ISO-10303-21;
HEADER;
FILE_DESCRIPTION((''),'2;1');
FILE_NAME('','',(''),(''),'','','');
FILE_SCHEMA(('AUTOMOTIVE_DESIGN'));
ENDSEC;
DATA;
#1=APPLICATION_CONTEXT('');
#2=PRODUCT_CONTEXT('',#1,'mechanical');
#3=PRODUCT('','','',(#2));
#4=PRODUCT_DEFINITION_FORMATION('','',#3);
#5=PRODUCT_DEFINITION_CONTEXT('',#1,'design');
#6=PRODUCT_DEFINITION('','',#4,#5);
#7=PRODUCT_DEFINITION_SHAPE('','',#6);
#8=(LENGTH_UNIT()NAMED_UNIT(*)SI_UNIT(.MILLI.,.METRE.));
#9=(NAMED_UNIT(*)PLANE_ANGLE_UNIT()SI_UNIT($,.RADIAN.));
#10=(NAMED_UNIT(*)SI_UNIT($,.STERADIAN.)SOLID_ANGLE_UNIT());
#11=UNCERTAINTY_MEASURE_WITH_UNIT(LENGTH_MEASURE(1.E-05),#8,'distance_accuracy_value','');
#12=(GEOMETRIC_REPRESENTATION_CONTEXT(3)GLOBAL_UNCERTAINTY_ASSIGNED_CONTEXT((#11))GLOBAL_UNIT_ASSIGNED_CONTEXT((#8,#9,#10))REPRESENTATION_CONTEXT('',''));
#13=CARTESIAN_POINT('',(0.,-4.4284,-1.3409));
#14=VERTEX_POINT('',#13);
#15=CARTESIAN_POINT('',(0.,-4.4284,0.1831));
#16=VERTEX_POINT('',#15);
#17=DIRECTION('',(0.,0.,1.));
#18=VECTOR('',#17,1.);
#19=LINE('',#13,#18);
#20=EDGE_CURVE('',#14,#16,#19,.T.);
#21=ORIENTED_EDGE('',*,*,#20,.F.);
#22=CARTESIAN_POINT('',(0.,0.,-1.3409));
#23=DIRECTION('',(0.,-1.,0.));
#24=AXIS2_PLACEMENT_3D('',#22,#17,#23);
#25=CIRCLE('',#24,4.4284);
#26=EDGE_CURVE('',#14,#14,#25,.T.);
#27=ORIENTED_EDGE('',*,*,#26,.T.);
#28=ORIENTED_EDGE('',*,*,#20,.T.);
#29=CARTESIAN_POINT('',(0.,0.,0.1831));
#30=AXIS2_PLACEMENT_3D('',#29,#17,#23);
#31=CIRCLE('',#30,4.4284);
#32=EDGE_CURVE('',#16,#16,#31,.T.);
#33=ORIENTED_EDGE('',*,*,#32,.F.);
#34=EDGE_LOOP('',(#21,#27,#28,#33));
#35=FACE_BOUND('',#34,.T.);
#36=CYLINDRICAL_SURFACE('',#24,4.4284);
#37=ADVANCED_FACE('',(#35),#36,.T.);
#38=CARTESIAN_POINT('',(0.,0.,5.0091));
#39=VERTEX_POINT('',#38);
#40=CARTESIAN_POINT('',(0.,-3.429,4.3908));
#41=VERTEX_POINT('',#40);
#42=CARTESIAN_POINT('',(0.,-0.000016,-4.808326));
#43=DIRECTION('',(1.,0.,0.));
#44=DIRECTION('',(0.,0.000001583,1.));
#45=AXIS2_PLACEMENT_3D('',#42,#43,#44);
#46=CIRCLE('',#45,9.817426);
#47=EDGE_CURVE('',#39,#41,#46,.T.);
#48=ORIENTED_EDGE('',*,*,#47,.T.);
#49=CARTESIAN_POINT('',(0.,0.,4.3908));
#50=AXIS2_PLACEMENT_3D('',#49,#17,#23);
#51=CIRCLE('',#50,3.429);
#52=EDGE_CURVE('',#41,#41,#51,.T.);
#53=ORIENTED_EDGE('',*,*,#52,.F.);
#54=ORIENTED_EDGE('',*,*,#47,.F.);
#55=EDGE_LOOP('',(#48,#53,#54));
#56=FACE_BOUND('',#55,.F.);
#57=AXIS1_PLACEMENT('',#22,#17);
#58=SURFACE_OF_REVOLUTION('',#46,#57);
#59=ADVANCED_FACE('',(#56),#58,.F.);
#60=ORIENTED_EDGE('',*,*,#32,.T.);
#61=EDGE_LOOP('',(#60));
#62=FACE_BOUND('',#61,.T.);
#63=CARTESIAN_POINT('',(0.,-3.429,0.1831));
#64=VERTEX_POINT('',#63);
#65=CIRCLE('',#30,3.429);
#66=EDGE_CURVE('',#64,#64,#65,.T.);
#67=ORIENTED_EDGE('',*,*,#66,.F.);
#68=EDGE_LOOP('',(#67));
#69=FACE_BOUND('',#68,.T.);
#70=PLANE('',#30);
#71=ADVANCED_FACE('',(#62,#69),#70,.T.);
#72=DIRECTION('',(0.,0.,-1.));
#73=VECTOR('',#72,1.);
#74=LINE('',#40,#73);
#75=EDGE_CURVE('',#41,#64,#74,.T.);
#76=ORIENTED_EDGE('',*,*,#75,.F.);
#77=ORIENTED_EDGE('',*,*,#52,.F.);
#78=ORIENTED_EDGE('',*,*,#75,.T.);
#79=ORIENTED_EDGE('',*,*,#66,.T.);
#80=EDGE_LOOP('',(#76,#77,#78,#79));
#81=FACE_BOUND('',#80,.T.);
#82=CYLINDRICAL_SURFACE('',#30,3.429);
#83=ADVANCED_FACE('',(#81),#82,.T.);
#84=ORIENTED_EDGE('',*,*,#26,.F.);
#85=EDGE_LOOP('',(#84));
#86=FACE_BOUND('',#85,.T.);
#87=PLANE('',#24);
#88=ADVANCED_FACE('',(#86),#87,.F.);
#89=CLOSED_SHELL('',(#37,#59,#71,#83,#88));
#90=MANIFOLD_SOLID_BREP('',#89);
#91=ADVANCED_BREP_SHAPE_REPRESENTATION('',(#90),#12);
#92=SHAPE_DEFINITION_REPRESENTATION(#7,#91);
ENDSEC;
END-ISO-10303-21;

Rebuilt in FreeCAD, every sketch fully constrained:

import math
import FreeCAD as App
import Part
import Sketcher
from FreeCAD import Vector
Q = App.Units.Quantity

doc = App.newDocument("Part")
body = doc.addObject("PartDesign::Body", "Body")

# Sketch on YZ plane
sketch1 = doc.addObject("Sketcher::SketchObject", "Sketch")
body.addObject(sketch1)
sketch1.AttachmentSupport = (doc.YZ_Plane, [""])
sketch1.MapMode = "FlatFace"
sketch1.addGeometry([
    Part.ArcOfCircle(Part.Circle(Vector(0, -4.8, 0), Vector(0, 0, 1), 9.8), math.radians(90), math.radians(110)),  # 0
    Part.LineSegment(Vector(-3.4, 4.4, 0), Vector(-3.4, 0.2, 0)),  # 1
    Part.LineSegment(Vector(-3.4, 0.2, 0), Vector(-4.4, 0.2, 0)),  # 2
    Part.LineSegment(Vector(-4.4, 0.2, 0), Vector(-4.4, -1.3, 0)),  # 3
    Part.LineSegment(Vector(-4.4, -1.3, 0), Vector(0, -1.3, 0)),  # 4
    Part.LineSegment(Vector(0, -1.3, 0), Vector(0, 5, 0)),  # 5
], False)
sketch1.addConstraint([
    Sketcher.Constraint("Coincident", 0, 2, 1, 1),
    Sketcher.Constraint("Coincident", 1, 2, 2, 1),
    Sketcher.Constraint("Coincident", 2, 2, 3, 1),
    Sketcher.Constraint("Coincident", 3, 2, 4, 1),
    Sketcher.Constraint("Coincident", 4, 2, 5, 1),
    Sketcher.Constraint("Coincident", 5, 2, 0, 1),
    Sketcher.Constraint("Vertical", 1),
    Sketcher.Constraint("Horizontal", 2),
    Sketcher.Constraint("Vertical", 3),
    Sketcher.Constraint("Horizontal", 4),
    Sketcher.Constraint("Vertical", 5),
    Sketcher.Constraint("PointOnObject", 0, 3, -2),
    Sketcher.Constraint("PointOnObject", 4, 2, -2),
    Sketcher.Constraint("DistanceY", 3, 2, 3, 1, Q("0.06 in")),
    Sketcher.Constraint("DistanceY", 5, 1, 5, 2, Q("0.25 in")),
    Sketcher.Constraint("DistanceX", 0, 2, -1, 1, Q("0.135 in")),
    Sketcher.Constraint("Radius", 0, 9.8176),
    Sketcher.Constraint("DistanceX", 2, 2, 2, 1, 0.9994),
    Sketcher.Constraint("DistanceY", 0, 3, -1, 1, Q("0.1893 in")),
])
revolution = doc.addObject("PartDesign::Revolution", "Revolution")
body.addObject(revolution)
revolution.Profile = sketch1
revolution.ReferenceAxis = (sketch1, ["V_Axis"])
revolution.Angle = 360

doc.recompute()
